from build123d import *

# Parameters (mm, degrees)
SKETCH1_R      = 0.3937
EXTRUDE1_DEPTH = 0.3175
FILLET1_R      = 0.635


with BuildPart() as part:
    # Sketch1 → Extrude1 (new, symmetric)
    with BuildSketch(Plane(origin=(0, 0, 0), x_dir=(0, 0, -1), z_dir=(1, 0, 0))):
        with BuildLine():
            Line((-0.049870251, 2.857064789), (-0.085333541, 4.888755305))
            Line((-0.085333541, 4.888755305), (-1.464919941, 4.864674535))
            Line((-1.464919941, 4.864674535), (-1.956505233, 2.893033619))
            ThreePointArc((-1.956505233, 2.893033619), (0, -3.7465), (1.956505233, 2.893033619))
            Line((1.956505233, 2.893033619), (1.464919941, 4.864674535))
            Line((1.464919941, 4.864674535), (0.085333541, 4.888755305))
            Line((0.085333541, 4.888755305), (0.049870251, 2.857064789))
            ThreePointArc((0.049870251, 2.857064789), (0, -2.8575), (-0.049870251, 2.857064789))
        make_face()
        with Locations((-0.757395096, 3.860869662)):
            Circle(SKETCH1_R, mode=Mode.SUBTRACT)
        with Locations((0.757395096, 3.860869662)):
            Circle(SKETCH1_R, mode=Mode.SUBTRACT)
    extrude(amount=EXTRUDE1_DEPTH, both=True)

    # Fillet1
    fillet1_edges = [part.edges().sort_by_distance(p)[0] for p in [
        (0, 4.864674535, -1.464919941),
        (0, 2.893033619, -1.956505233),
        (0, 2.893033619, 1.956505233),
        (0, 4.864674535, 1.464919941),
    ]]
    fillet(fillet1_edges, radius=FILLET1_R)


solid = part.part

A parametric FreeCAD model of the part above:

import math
import FreeCAD as App
import Part
import Sketcher

V = App.Vector
Q = App.Units.Quantity


def edges_at(feature, points):
    """Names of the edges that pass closest to the given points."""
    edges = feature.Shape.Edges
    near = lambda p: min(range(len(edges)), key=lambda i: edges[i].distToShape(Part.Vertex(*p))[0])
    return sorted({f"Edge{near(p) + 1}" for p in points})

doc = App.newDocument("Part")
body = doc.addObject("PartDesign::Body", "Body")

sketch1 = doc.addObject("Sketcher::SketchObject", "Sketch")
body.addObject(sketch1)
sketch1.AttachmentSupport = (doc.YZ_Plane, [""])
sketch1.MapMode = "FlatFace"
sketch1.addGeometry([
    Part.LineSegment(V(2.86, 0.05, 0), V(4.89, 0.09, 0)),
    Part.LineSegment(V(4.89, 0.09, 0), V(4.86, 1.46, 0)),
    Part.LineSegment(V(4.86, 1.46, 0), V(2.89, 1.96, 0)),
    Part.ArcOfCircle(Part.Circle(V(-0.14, 0, 0), V(0, 0, 1), 3.61), math.radians(33), math.radians(327)),
    Part.LineSegment(V(2.89, -1.96, 0), V(4.86, -1.46, 0)),
    Part.LineSegment(V(4.86, -1.46, 0), V(4.89, -0.09, 0)),
    Part.LineSegment(V(4.89, -0.09, 0), V(2.86, -0.05, 0)),
    Part.ArcOfCircle(Part.Circle(V(0, 0, 0), V(0, 0, 1), 2.86), math.radians(1), math.radians(359)),
    Part.Circle(V(3.86, 0.76, 0), V(0, 0, 1), 0.39),
    Part.Circle(V(3.86, -0.76, 0), V(0, 0, 1), 0.39),
], False)
sketch1.addConstraint([
    Sketcher.Constraint("Coincident", 0, 2, 1, 1),
    Sketcher.Constraint("Coincident", 1, 2, 2, 1),
    Sketcher.Constraint("Coincident", 2, 2, 3, 1),
    Sketcher.Constraint("Coincident", 3, 2, 4, 1),
    Sketcher.Constraint("Coincident", 4, 2, 5, 1),
    Sketcher.Constraint("Coincident", 5, 2, 6, 1),
    Sketcher.Constraint("Coincident", 6, 2, 7, 2),
    Sketcher.Constraint("Coincident", 7, 1, 0, 1),
    Sketcher.Constraint("Coincident", 7, 3, -1, 1),
    Sketcher.Constraint("Equal", 8, 9),
    Sketcher.Constraint("Symmetric", 8, 3, 9, 3, -1),
    Sketcher.Constraint("Symmetric", 2, 2, 3, 2, -1),
    Sketcher.Constraint("Symmetric", 1, 2, 4, 2, -1),
    Sketcher.Constraint("Symmetric", 0, 2, 5, 2, -1),
    Sketcher.Constraint("Perpendicular", 0, 1),
    Sketcher.Constraint("Perpendicular", 5, 6),
    Sketcher.Constraint("Equal", 0, 2),
    Sketcher.Constraint("Diameter", 8, Q("0.031 in")),
    Sketcher.Constraint("Angle", 0, Q("1 deg")),
    Sketcher.Constraint("Angle", 2, Q("166 deg")),
    Sketcher.Constraint("Radius", 7, Q("0.1125 in")),
    Sketcher.Constraint("Distance", 0, Q("0.08 in")),
    Sketcher.Constraint("Radius", 3, Q("3.608033 mm")),
    Sketcher.Constraint("DistanceY", 9, 3, 2, 2, Q("2.7139 mm")),
    Sketcher.Constraint("DistanceX", 3, 3, 3, 2, Q("3.0315 mm")),
    Sketcher.Constraint("DistanceX", -1, 1, 8, 3, Q("3.86087 mm")),
    Sketcher.Constraint("DistanceY", 6, 2, -1, 1, Q("0.04987 mm")),
])
pad1 = doc.addObject("PartDesign::Pad", "Pad")
body.addObject(pad1)
pad1.Profile = sketch1
pad1.Length = Q("0.025 in")
pad1.Midplane = True
doc.recompute()

fillet = doc.addObject("PartDesign::Fillet", "Fillet")
body.addObject(fillet)
fillet.Base = (pad1, edges_at(pad1, [
    (0, 4.865, -1.465),
    (0, 2.893, -1.957),
    (0, 2.893, 1.957),
    (0, 4.865, 1.465),
]))
fillet.Radius = Q("0.025 in")

doc.recompute()
